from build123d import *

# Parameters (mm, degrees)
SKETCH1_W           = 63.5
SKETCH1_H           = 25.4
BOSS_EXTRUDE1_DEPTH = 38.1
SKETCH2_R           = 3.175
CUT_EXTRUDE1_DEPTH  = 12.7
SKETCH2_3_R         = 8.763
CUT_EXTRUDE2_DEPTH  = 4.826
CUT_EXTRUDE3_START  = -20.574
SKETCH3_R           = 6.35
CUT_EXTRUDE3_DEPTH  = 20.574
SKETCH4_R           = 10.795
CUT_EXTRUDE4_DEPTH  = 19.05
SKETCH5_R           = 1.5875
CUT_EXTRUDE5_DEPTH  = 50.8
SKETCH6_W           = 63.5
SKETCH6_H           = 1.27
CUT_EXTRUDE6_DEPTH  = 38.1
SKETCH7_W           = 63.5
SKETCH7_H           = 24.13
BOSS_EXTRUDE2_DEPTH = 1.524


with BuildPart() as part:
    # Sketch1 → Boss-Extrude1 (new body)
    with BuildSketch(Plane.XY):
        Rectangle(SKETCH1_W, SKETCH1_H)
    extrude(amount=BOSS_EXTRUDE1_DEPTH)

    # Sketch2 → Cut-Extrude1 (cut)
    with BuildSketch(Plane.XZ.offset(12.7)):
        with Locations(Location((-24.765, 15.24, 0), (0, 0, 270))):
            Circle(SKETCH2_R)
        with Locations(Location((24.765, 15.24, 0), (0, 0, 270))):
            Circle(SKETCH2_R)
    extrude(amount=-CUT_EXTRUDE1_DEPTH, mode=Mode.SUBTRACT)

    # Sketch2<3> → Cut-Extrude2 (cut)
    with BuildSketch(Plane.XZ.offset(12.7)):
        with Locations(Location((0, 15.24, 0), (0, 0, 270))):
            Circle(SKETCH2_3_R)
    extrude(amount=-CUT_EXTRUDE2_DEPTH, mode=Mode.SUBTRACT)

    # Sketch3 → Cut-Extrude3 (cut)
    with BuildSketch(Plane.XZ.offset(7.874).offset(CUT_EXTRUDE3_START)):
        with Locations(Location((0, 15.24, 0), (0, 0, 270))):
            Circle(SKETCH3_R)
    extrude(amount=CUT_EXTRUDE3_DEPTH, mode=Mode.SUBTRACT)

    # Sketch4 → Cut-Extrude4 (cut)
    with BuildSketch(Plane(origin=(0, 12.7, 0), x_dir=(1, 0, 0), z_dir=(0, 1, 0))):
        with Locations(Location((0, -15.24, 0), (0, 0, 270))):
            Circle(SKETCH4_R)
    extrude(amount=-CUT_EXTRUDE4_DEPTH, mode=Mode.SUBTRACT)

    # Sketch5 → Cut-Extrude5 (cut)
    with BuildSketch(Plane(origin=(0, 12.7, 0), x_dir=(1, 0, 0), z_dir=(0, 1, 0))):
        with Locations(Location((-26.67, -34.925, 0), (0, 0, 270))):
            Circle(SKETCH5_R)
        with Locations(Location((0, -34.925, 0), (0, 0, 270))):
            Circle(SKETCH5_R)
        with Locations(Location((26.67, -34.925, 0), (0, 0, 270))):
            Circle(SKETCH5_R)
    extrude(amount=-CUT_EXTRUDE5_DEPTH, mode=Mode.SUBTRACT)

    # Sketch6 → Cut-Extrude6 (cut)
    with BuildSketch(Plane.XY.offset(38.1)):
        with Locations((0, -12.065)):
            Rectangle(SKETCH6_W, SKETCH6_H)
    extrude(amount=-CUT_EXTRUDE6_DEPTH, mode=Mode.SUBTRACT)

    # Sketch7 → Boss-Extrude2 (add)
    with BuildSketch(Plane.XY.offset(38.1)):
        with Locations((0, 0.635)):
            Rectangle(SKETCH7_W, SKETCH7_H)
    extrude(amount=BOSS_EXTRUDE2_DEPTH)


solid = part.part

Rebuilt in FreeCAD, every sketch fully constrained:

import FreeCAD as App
import Part
import Sketcher

V = App.Vector
Q = App.Units.Quantity

doc = App.newDocument("Part")
body = doc.addObject("PartDesign::Body", "Body")

sketch1 = body.newObject("Sketcher::SketchObject", "Sketch")
sketch1.AttachmentSupport = (doc.getObject("XY_Plane"), [""])
sketch1.MapMode = "FlatFace"
sketch1.addGeometry(Part.LineSegment(V(-32, 13, 0), V(-32, -13, 0)), False)
sketch1.addGeometry(Part.LineSegment(V(-32, -13, 0), V(32, -13, 0)), False)
sketch1.addGeometry(Part.LineSegment(V(32, -13, 0), V(32, 13, 0)), False)
sketch1.addGeometry(Part.LineSegment(V(32, 13, 0), V(-32, 13, 0)), False)
sketch1.addConstraint(Sketcher.Constraint("Coincident", 0, 2, 1, 1))
sketch1.addConstraint(Sketcher.Constraint("Coincident", 1, 2, 2, 1))
sketch1.addConstraint(Sketcher.Constraint("Coincident", 2, 2, 3, 1))
sketch1.addConstraint(Sketcher.Constraint("Coincident", 3, 2, 0, 1))
sketch1.addConstraint(Sketcher.Constraint("Vertical", 0))
sketch1.addConstraint(Sketcher.Constraint("Horizontal", 1))
sketch1.addConstraint(Sketcher.Constraint("Vertical", 2))
sketch1.addConstraint(Sketcher.Constraint("Horizontal", 3))
sketch1.addConstraint(Sketcher.Constraint("Symmetric", 0, 2, 2, 2, -1, 1))
sketch1.addConstraint(Sketcher.Constraint("DistanceY", 0, 2, 0, 1, Q("1 in")))
sketch1.addConstraint(Sketcher.Constraint("DistanceX", 1, 1, 1, 2, Q("2.5 in")))
pad1 = body.newObject("PartDesign::Pad", "Pad")
pad1.Profile = sketch1
pad1.Length = Q("1.5 in")

sketch2 = body.newObject("Sketcher::SketchObject", "Sketch001")
sketch2.AttachmentSupport = (doc.getObject("XZ_Plane"), [""])
sketch2.MapMode = "FlatFace"
sketch2.AttachmentOffset = App.Placement(V(0, 0, 0.5 * 25.4), App.Rotation())
sketch2.addGeometry(Part.Circle(V(-24.8, 15.2, 0), V(0, 0, 1), 3.2), False)
sketch2.addGeometry(Part.Circle(V(24.8, 15.2, 0), V(0, 0, 1), 3.2), False)
sketch2.addConstraint(Sketcher.Constraint("Equal", 0, 1))
sketch2.addConstraint(Sketcher.Constraint("Symmetric", 0, 3, 1, 3, -2))
sketch2.addConstraint(Sketcher.Constraint("Diameter", 0, Q("0.25 in")))
sketch2.addConstraint(Sketcher.Constraint("DistanceY", -1, 1, 0, 3, Q("0.6 in")))
sketch2.addConstraint(Sketcher.Constraint("DistanceX", 0, 3, 1, 3, Q("1.95 in")))
pocket1 = body.newObject("PartDesign::Pocket", "Pocket")
pocket1.Profile = sketch2
pocket1.Length = Q("0.5 in")

sketch3 = body.newObject("Sketcher::SketchObject", "Sketch002")
sketch3.AttachmentSupport = (doc.getObject("XZ_Plane"), [""])
sketch3.MapMode = "FlatFace"
sketch3.AttachmentOffset = App.Placement(V(0, 0, 0.5 * 25.4), App.Rotation())
sketch3.addGeometry(Part.Circle(V(0, 15, 0), V(0, 0, 1), 9), False)
sketch3.addConstraint(Sketcher.Constraint("PointOnObject", 0, 3, -2))
sketch3.addConstraint(Sketcher.Constraint("Diameter", 0, Q("0.69 in")))
sketch3.addConstraint(Sketcher.Constraint("DistanceY", -1, 1, 0, 3, Q("0.6 in")))
pocket2 = body.newObject("PartDesign::Pocket", "Pocket001")
pocket2.Profile = sketch3
pocket2.Length = Q("0.19 in")

sketch4 = body.newObject("Sketcher::SketchObject", "Sketch003")
sketch4.AttachmentSupport = (doc.getObject("XZ_Plane"), [""])
sketch4.MapMode = "FlatFace"
sketch4.AttachmentOffset = App.Placement(V(0, 0, -0.5 * 25.4), App.Rotation())
sketch4.addGeometry(Part.Circle(V(0, 15, 0), V(0, 0, 1), 6), False)
sketch4.addConstraint(Sketcher.Constraint("PointOnObject", 0, 3, -2))
sketch4.addConstraint(Sketcher.Constraint("Diameter", 0, Q("0.5 in")))
sketch4.addConstraint(Sketcher.Constraint("DistanceY", -1, 1, 0, 3, Q("0.6 in")))
pocket3 = body.newObject("PartDesign::Pocket", "Pocket002")
pocket3.Profile = sketch4
pocket3.Length = Q("0.81 in")
pocket3.Reversed = True

sketch5 = body.newObject("Sketcher::SketchObject", "Sketch004")
sketch5.AttachmentSupport = (doc.getObject("XZ_Plane"), [""])
sketch5.MapMode = "FlatFace"
sketch5.AttachmentOffset = App.Placement(V(0, 0, -0.5 * 25.4), App.Rotation())
sketch5.addGeometry(Part.Circle(V(0, 15, 0), V(0, 0, 1), 11), False)
sketch5.addConstraint(Sketcher.Constraint("PointOnObject", 0, 3, -2))
sketch5.addConstraint(Sketcher.Constraint("Diameter", 0, Q("0.85 in")))
sketch5.addConstraint(Sketcher.Constraint("DistanceY", -1, 1, 0, 3, Q("0.6 in")))
pocket4 = body.newObject("PartDesign::Pocket", "Pocket003")
pocket4.Profile = sketch5
pocket4.Length = Q("0.75 in")
pocket4.Reversed = True

sketch6 = body.newObject("Sketcher::SketchObject", "Sketch005")
sketch6.AttachmentSupport = (doc.getObject("XZ_Plane"), [""])
sketch6.MapMode = "FlatFace"
sketch6.AttachmentOffset = App.Placement(V(0, 0, -0.5 * 25.4), App.Rotation())
sketch6.addGeometry(Part.Circle(V(-26.7, 34.9, 0), V(0, 0, 1), 1.6), False)
sketch6.addGeometry(Part.Circle(V(0, 34.9, 0), V(0, 0, 1), 1.6), False)
sketch6.addGeometry(Part.Circle(V(26.7, 34.9, 0), V(0, 0, 1), 1.6), False)
sketch6.addConstraint(Sketcher.Constraint("Equal", 0, 1))
sketch6.addConstraint(Sketcher.Constraint("Equal", 1, 2))
sketch6.addConstraint(Sketcher.Constraint("Symmetric", 0, 3, 2, 3, -2))
sketch6.addConstraint(Sketcher.Constraint("PointOnObject", 1, 3, -2))
sketch6.addConstraint(Sketcher.Constraint("Horizontal", 0, 3, 1, 3))
sketch6.addConstraint(Sketcher.Constraint("Diameter", 0, Q("0.125 in")))
sketch6.addConstraint(Sketcher.Constraint("DistanceX", 0, 3, 2, 3, Q("2.1 in")))
sketch6.addConstraint(Sketcher.Constraint("DistanceY", -1, 1, 0, 3, Q("1.375 in")))
pocket5 = body.newObject("PartDesign::Pocket", "Pocket004")
pocket5.Profile = sketch6
pocket5.Length = Q("2 in")
pocket5.Reversed = True

sketch7 = body.newObject("Sketcher::SketchObject", "Sketch006")
sketch7.AttachmentSupport = (doc.getObject("XY_Plane"), [""])
sketch7.MapMode = "FlatFace"
sketch7.AttachmentOffset = App.Placement(V(0, 0, 1.5 * 25.4), App.Rotation())
sketch7.addGeometry(Part.LineSegment(V(-31.8, -11.4, 0), V(-31.8, -12.7, 0)), False)
sketch7.addGeometry(Part.LineSegment(V(-31.8, -12.7, 0), V(31.8, -12.7, 0)), False)
sketch7.addGeometry(Part.LineSegment(V(31.8, -12.7, 0), V(31.8, -11.4, 0)), False)
sketch7.addGeometry(Part.LineSegment(V(31.8, -11.4, 0), V(-31.8, -11.4, 0)), False)
sketch7.addConstraint(Sketcher.Constraint("Coincident", 0, 2, 1, 1))
sketch7.addConstraint(Sketcher.Constraint("Coincident", 1, 2, 2, 1))
sketch7.addConstraint(Sketcher.Constraint("Coincident", 2, 2, 3, 1))
sketch7.addConstraint(Sketcher.Constraint("Coincident", 3, 2, 0, 1))
sketch7.addConstraint(Sketcher.Constraint("Vertical", 0))
sketch7.addConstraint(Sketcher.Constraint("Horizontal", 1))
sketch7.addConstraint(Sketcher.Constraint("Vertical", 2))
sketch7.addConstraint(Sketcher.Constraint("Horizontal", 3))
sketch7.addConstraint(Sketcher.Constraint("DistanceX", 1, 1, 1, 2, Q("2.5 in")))
sketch7.addConstraint(Sketcher.Constraint("DistanceY", 0, 2, 0, 1, Q("0.05 in")))
sketch7.addConstraint(Sketcher.Constraint("DistanceY", 0, 2, -1, 1, Q("0.5 in")))
sketch7.addConstraint(Sketcher.Constraint("DistanceX", 0, 2, -1, 1, Q("1.25 in")))
pocket6 = body.newObject("PartDesign::Pocket", "Pocket005")
pocket6.Profile = sketch7
pocket6.Length = Q("1.5 in")

sketch8 = body.newObject("Sketcher::SketchObject", "Sketch007")
sketch8.AttachmentSupport = (doc.getObject("XY_Plane"), [""])
sketch8.MapMode = "FlatFace"
sketch8.AttachmentOffset = App.Placement(V(0, 0, 1.5 * 25.4), App.Rotation())
sketch8.addGeometry(Part.LineSegment(V(-32, 13, 0), V(-32, -11, 0)), False)
sketch8.addGeometry(Part.LineSegment(V(-32, -11, 0), V(32, -11, 0)), False)
sketch8.addGeometry(Part.LineSegment(V(32, -11, 0), V(32, 13, 0)), False)
sketch8.addGeometry(Part.LineSegment(V(32, 13, 0), V(-32, 13, 0)), False)
sketch8.addConstraint(Sketcher.Constraint("Coincident", 0, 2, 1, 1))
sketch8.addConstraint(Sketcher.Constraint("Coincident", 1, 2, 2, 1))
sketch8.addConstraint(Sketcher.Constraint("Coincident", 2, 2, 3, 1))
sketch8.addConstraint(Sketcher.Constraint("Coincident", 3, 2, 0, 1))
sketch8.addConstraint(Sketcher.Constraint("Vertical", 0))
sketch8.addConstraint(Sketcher.Constraint("Horizontal", 1))
sketch8.addConstraint(Sketcher.Constraint("Vertical", 2))
sketch8.addConstraint(Sketcher.Constraint("Horizontal", 3))
sketch8.addConstraint(Sketcher.Constraint("DistanceX", 1, 1, 1, 2, Q("2.5 in")))
sketch8.addConstraint(Sketcher.Constraint("DistanceY", 0, 2, 0, 1, Q("0.95 in")))
sketch8.addConstraint(Sketcher.Constraint("DistanceY", -1, 1, 2, 2, Q("0.5 in")))
sketch8.addConstraint(Sketcher.Constraint("DistanceX", 0, 2, -1, 1, Q("1.25 in")))
pad2 = body.newObject("PartDesign::Pad", "Pad001")
pad2.Profile = sketch8
pad2.Length = Q("0.06 in")

doc.recompute()
